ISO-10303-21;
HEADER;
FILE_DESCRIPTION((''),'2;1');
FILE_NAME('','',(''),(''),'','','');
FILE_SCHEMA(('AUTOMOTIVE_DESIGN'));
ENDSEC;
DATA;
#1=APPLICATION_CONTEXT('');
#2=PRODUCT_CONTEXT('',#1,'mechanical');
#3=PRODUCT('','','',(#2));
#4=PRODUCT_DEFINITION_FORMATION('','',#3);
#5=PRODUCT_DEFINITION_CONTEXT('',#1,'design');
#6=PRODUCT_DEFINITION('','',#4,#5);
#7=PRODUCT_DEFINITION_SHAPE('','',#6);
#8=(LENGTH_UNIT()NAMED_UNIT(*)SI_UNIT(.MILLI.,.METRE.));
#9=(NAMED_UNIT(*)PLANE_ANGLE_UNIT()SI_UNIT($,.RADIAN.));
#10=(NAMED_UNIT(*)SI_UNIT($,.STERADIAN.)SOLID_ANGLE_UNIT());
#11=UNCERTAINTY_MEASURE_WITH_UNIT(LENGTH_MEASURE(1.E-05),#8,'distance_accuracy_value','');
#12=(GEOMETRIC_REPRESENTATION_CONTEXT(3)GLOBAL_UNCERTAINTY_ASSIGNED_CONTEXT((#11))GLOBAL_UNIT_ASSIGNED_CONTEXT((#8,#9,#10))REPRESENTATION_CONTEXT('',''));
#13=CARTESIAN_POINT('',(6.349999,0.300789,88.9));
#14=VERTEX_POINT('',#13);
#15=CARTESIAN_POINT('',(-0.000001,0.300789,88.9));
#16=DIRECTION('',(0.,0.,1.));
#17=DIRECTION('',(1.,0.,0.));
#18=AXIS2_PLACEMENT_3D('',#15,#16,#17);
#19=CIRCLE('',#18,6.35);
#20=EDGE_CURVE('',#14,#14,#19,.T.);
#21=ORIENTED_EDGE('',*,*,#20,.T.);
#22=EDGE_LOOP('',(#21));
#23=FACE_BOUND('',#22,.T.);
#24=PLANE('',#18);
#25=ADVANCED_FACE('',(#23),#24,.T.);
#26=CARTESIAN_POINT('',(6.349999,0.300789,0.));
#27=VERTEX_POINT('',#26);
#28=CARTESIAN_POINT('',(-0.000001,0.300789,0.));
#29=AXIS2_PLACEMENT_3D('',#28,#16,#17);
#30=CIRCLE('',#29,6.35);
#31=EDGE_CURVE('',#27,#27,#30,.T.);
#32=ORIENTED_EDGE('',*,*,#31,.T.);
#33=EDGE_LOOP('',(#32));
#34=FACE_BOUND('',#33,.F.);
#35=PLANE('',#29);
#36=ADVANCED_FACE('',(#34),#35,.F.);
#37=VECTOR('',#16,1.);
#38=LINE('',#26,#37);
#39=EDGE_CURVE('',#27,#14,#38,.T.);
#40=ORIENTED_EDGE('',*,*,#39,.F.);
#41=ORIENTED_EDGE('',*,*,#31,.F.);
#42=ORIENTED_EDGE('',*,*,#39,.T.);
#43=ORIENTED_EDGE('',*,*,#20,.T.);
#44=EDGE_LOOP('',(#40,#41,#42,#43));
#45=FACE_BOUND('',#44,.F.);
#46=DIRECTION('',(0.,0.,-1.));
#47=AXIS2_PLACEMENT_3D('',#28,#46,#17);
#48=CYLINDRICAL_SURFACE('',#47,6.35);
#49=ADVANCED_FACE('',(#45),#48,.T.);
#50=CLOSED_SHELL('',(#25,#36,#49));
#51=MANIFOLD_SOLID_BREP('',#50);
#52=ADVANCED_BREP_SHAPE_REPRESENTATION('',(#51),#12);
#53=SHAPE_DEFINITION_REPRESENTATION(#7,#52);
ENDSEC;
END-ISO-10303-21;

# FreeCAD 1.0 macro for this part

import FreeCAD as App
import Part
import Sketcher
from FreeCAD import Vector
Q = App.Units.Quantity

doc = App.newDocument("Part")
body = doc.addObject("PartDesign::Body", "Body")

sketch1 = body.newObject("Sketcher::SketchObject", "Sketch")
sketch1.AttachmentSupport = (doc.getObject("XY_Plane"), [""])
sketch1.MapMode = "FlatFace"
sketch1.addGeometry(Part.Circle(Vector(0, 0, 0), Vector(0, 0, 1), 6), False)
sketch1.addConstraint(Sketcher.Constraint("PointOnObject", 0, 3, -2))
sketch1.addConstraint(Sketcher.Constraint("Diameter", 0, Q("0.5 in")))
sketch1.addConstraint(Sketcher.Constraint("DistanceY", -1, 1, 0, 3, Q("0.300789 mm")))
pad1 = body.newObject("PartDesign::Pad", "Pad")
pad1.Profile = sketch1
pad1.Length = Q("3.5 in")

doc.recompute()
